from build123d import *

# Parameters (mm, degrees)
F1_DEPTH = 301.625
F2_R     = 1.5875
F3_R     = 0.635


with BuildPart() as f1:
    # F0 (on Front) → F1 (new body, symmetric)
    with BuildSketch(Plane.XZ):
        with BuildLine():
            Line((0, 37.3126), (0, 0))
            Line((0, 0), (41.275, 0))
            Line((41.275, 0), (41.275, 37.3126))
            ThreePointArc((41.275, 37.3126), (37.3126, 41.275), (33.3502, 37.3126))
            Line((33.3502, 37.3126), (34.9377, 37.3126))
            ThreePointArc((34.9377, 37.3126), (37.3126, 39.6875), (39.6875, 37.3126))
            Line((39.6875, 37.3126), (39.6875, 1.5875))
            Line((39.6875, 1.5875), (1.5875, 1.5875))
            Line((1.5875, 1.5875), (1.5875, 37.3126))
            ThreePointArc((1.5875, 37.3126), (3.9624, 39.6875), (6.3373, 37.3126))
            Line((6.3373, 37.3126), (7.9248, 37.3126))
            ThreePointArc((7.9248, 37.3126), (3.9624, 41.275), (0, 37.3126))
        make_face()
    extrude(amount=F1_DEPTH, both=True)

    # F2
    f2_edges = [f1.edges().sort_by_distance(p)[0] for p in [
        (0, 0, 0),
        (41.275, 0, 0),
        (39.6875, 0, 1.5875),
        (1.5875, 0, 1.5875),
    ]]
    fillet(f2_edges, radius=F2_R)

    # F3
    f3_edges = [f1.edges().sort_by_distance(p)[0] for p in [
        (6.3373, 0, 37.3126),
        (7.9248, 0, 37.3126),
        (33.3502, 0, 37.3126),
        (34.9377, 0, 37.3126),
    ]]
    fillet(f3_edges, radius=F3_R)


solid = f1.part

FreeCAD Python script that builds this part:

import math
import FreeCAD as App
import Part
import Sketcher
Q = App.Units.Quantity


def edges_at(feature, points):
    """Names of the edges that pass closest to the given points."""
    edges = feature.Shape.Edges
    near = lambda p: min(range(len(edges)), key=lambda i: edges[i].distToShape(Part.Vertex(*p))[0])
    return sorted({f"Edge{near(p) + 1}" for p in points})

doc = App.newDocument("Part")
body = doc.addObject("PartDesign::Body", "Body")

# Sketch on XZ plane
sketch1 = body.newObject("Sketcher::SketchObject", "Sketch")
sketch1.AttachmentSupport = (doc.getObject("XZ_Plane"), [""])
sketch1.MapMode = "FlatFace"
sketch1.addGeometry([
    Part.LineSegment(App.Vector(0, 37.3, 0), App.Vector(0, 0, 0)),  # 0
    Part.LineSegment(App.Vector(0, 0, 0), App.Vector(41.3, 0, 0)),  # 1
    Part.LineSegment(App.Vector(41.3, 0, 0), App.Vector(41.3, 37.3, 0)),  # 2
    Part.ArcOfCircle(Part.Circle(App.Vector(37.3, 37.3, 0), App.Vector(0, 0, 1), 4), math.radians(0), math.radians(180)),  # 3
    Part.LineSegment(App.Vector(33.4, 37.3, 0), App.Vector(34.9, 37.3, 0)),  # 4
    Part.ArcOfCircle(Part.Circle(App.Vector(37.3, 37.3, 0), App.Vector(0, 0, 1), 2.4), math.radians(0), math.radians(180)),  # 5
    Part.LineSegment(App.Vector(39.7, 37.3, 0), App.Vector(39.7, 1.6, 0)),  # 6
    Part.LineSegment(App.Vector(39.7, 1.6, 0), App.Vector(1.6, 1.6, 0)),  # 7
    Part.LineSegment(App.Vector(1.6, 1.6, 0), App.Vector(1.6, 37.3, 0)),  # 8
    Part.ArcOfCircle(Part.Circle(App.Vector(4, 37.3, 0), App.Vector(0, 0, 1), 2.4), math.radians(0), math.radians(180)),  # 9
    Part.LineSegment(App.Vector(6.3, 37.3, 0), App.Vector(7.9, 37.3, 0)),  # 10
    Part.ArcOfCircle(Part.Circle(App.Vector(4, 37.3, 0), App.Vector(0, 0, 1), 4), math.radians(0), math.radians(180)),  # 11
], False)
sketch1.addConstraint([
    Sketcher.Constraint("Coincident", 0, 2, 1, 1),
    Sketcher.Constraint("Coincident", 1, 2, 2, 1),
    Sketcher.Constraint("Tangent", 2, 2, 3, 1),
    Sketcher.Constraint("Coincident", 3, 2, 4, 1),
    Sketcher.Constraint("Coincident", 4, 2, 5, 2),
    Sketcher.Constraint("Tangent", 5, 1, 6, 1),
    Sketcher.Constraint("Coincident", 6, 2, 7, 1),
    Sketcher.Constraint("Coincident", 7, 2, 8, 1),
    Sketcher.Constraint("Tangent", 8, 2, 9, 2),
    Sketcher.Constraint("Coincident", 9, 1, 10, 1),
    Sketcher.Constraint("Coincident", 10, 2, 11, 1),
    Sketcher.Constraint("Tangent", 11, 2, 0, 1),
    Sketcher.Constraint("Vertical", 0),
    Sketcher.Constraint("Horizontal", 1),
    Sketcher.Constraint("Vertical", 2),
    Sketcher.Constraint("Horizontal", 4),
    Sketcher.Constraint("Vertical", 6),
    Sketcher.Constraint("Horizontal", 7),
    Sketcher.Constraint("Vertical", 8),
    Sketcher.Constraint("Horizontal", 10),
    Sketcher.Constraint("Coincident", 0, 2, -1, 1),
    Sketcher.Constraint("Coincident", 5, 3, 3, 3),
    Sketcher.Constraint("Coincident", 11, 3, 9, 3),
    Sketcher.Constraint("Equal", 5, 9),
    Sketcher.Constraint("Equal", 3, 11),
    Sketcher.Constraint("Horizontal", 5, 3, 9, 3),
    Sketcher.Constraint("Horizontal", 2, 2, 3, 2),
    Sketcher.Constraint("Horizontal", 8, 2, 9, 1),
    Sketcher.Constraint("DistanceX", 7, 2, 7, 1, Q("1.5 in")),
    Sketcher.Constraint("Radius", 3, Q("0.156 in")),
    Sketcher.Constraint("Radius", 5, Q("0.0935 in")),
    Sketcher.Constraint("DistanceY", 0, 2, 0, 1, Q("1.469 in")),
    Sketcher.Constraint("DistanceY", 6, 2, 6, 1, Q("1.4065 in")),
])
pad1 = body.newObject("PartDesign::Pad", "Pad")
pad1.Profile = sketch1
pad1.Length = Q("23.75 in")
pad1.Midplane = True
doc.recompute()

fillet = body.newObject("PartDesign::Fillet", "Fillet")
fillet.Base = (pad1, edges_at(pad1, [
    (0, 0, 0),
    (41.275, 0, 0),
    (39.688, 0, 1.587),
    (1.587, 0, 1.587),
]))
fillet.Radius = Q("0.0625 in")
doc.recompute()

fillet2 = body.newObject("PartDesign::Fillet", "Fillet001")
fillet2.Base = (fillet, edges_at(fillet, [
    (6.337, 0, 37.313),
    (7.925, 0, 37.313),
    (33.35, 0, 37.313),
    (34.938, 0, 37.313),
]))
fillet2.Radius = Q("0.025 in")

doc.recompute()
